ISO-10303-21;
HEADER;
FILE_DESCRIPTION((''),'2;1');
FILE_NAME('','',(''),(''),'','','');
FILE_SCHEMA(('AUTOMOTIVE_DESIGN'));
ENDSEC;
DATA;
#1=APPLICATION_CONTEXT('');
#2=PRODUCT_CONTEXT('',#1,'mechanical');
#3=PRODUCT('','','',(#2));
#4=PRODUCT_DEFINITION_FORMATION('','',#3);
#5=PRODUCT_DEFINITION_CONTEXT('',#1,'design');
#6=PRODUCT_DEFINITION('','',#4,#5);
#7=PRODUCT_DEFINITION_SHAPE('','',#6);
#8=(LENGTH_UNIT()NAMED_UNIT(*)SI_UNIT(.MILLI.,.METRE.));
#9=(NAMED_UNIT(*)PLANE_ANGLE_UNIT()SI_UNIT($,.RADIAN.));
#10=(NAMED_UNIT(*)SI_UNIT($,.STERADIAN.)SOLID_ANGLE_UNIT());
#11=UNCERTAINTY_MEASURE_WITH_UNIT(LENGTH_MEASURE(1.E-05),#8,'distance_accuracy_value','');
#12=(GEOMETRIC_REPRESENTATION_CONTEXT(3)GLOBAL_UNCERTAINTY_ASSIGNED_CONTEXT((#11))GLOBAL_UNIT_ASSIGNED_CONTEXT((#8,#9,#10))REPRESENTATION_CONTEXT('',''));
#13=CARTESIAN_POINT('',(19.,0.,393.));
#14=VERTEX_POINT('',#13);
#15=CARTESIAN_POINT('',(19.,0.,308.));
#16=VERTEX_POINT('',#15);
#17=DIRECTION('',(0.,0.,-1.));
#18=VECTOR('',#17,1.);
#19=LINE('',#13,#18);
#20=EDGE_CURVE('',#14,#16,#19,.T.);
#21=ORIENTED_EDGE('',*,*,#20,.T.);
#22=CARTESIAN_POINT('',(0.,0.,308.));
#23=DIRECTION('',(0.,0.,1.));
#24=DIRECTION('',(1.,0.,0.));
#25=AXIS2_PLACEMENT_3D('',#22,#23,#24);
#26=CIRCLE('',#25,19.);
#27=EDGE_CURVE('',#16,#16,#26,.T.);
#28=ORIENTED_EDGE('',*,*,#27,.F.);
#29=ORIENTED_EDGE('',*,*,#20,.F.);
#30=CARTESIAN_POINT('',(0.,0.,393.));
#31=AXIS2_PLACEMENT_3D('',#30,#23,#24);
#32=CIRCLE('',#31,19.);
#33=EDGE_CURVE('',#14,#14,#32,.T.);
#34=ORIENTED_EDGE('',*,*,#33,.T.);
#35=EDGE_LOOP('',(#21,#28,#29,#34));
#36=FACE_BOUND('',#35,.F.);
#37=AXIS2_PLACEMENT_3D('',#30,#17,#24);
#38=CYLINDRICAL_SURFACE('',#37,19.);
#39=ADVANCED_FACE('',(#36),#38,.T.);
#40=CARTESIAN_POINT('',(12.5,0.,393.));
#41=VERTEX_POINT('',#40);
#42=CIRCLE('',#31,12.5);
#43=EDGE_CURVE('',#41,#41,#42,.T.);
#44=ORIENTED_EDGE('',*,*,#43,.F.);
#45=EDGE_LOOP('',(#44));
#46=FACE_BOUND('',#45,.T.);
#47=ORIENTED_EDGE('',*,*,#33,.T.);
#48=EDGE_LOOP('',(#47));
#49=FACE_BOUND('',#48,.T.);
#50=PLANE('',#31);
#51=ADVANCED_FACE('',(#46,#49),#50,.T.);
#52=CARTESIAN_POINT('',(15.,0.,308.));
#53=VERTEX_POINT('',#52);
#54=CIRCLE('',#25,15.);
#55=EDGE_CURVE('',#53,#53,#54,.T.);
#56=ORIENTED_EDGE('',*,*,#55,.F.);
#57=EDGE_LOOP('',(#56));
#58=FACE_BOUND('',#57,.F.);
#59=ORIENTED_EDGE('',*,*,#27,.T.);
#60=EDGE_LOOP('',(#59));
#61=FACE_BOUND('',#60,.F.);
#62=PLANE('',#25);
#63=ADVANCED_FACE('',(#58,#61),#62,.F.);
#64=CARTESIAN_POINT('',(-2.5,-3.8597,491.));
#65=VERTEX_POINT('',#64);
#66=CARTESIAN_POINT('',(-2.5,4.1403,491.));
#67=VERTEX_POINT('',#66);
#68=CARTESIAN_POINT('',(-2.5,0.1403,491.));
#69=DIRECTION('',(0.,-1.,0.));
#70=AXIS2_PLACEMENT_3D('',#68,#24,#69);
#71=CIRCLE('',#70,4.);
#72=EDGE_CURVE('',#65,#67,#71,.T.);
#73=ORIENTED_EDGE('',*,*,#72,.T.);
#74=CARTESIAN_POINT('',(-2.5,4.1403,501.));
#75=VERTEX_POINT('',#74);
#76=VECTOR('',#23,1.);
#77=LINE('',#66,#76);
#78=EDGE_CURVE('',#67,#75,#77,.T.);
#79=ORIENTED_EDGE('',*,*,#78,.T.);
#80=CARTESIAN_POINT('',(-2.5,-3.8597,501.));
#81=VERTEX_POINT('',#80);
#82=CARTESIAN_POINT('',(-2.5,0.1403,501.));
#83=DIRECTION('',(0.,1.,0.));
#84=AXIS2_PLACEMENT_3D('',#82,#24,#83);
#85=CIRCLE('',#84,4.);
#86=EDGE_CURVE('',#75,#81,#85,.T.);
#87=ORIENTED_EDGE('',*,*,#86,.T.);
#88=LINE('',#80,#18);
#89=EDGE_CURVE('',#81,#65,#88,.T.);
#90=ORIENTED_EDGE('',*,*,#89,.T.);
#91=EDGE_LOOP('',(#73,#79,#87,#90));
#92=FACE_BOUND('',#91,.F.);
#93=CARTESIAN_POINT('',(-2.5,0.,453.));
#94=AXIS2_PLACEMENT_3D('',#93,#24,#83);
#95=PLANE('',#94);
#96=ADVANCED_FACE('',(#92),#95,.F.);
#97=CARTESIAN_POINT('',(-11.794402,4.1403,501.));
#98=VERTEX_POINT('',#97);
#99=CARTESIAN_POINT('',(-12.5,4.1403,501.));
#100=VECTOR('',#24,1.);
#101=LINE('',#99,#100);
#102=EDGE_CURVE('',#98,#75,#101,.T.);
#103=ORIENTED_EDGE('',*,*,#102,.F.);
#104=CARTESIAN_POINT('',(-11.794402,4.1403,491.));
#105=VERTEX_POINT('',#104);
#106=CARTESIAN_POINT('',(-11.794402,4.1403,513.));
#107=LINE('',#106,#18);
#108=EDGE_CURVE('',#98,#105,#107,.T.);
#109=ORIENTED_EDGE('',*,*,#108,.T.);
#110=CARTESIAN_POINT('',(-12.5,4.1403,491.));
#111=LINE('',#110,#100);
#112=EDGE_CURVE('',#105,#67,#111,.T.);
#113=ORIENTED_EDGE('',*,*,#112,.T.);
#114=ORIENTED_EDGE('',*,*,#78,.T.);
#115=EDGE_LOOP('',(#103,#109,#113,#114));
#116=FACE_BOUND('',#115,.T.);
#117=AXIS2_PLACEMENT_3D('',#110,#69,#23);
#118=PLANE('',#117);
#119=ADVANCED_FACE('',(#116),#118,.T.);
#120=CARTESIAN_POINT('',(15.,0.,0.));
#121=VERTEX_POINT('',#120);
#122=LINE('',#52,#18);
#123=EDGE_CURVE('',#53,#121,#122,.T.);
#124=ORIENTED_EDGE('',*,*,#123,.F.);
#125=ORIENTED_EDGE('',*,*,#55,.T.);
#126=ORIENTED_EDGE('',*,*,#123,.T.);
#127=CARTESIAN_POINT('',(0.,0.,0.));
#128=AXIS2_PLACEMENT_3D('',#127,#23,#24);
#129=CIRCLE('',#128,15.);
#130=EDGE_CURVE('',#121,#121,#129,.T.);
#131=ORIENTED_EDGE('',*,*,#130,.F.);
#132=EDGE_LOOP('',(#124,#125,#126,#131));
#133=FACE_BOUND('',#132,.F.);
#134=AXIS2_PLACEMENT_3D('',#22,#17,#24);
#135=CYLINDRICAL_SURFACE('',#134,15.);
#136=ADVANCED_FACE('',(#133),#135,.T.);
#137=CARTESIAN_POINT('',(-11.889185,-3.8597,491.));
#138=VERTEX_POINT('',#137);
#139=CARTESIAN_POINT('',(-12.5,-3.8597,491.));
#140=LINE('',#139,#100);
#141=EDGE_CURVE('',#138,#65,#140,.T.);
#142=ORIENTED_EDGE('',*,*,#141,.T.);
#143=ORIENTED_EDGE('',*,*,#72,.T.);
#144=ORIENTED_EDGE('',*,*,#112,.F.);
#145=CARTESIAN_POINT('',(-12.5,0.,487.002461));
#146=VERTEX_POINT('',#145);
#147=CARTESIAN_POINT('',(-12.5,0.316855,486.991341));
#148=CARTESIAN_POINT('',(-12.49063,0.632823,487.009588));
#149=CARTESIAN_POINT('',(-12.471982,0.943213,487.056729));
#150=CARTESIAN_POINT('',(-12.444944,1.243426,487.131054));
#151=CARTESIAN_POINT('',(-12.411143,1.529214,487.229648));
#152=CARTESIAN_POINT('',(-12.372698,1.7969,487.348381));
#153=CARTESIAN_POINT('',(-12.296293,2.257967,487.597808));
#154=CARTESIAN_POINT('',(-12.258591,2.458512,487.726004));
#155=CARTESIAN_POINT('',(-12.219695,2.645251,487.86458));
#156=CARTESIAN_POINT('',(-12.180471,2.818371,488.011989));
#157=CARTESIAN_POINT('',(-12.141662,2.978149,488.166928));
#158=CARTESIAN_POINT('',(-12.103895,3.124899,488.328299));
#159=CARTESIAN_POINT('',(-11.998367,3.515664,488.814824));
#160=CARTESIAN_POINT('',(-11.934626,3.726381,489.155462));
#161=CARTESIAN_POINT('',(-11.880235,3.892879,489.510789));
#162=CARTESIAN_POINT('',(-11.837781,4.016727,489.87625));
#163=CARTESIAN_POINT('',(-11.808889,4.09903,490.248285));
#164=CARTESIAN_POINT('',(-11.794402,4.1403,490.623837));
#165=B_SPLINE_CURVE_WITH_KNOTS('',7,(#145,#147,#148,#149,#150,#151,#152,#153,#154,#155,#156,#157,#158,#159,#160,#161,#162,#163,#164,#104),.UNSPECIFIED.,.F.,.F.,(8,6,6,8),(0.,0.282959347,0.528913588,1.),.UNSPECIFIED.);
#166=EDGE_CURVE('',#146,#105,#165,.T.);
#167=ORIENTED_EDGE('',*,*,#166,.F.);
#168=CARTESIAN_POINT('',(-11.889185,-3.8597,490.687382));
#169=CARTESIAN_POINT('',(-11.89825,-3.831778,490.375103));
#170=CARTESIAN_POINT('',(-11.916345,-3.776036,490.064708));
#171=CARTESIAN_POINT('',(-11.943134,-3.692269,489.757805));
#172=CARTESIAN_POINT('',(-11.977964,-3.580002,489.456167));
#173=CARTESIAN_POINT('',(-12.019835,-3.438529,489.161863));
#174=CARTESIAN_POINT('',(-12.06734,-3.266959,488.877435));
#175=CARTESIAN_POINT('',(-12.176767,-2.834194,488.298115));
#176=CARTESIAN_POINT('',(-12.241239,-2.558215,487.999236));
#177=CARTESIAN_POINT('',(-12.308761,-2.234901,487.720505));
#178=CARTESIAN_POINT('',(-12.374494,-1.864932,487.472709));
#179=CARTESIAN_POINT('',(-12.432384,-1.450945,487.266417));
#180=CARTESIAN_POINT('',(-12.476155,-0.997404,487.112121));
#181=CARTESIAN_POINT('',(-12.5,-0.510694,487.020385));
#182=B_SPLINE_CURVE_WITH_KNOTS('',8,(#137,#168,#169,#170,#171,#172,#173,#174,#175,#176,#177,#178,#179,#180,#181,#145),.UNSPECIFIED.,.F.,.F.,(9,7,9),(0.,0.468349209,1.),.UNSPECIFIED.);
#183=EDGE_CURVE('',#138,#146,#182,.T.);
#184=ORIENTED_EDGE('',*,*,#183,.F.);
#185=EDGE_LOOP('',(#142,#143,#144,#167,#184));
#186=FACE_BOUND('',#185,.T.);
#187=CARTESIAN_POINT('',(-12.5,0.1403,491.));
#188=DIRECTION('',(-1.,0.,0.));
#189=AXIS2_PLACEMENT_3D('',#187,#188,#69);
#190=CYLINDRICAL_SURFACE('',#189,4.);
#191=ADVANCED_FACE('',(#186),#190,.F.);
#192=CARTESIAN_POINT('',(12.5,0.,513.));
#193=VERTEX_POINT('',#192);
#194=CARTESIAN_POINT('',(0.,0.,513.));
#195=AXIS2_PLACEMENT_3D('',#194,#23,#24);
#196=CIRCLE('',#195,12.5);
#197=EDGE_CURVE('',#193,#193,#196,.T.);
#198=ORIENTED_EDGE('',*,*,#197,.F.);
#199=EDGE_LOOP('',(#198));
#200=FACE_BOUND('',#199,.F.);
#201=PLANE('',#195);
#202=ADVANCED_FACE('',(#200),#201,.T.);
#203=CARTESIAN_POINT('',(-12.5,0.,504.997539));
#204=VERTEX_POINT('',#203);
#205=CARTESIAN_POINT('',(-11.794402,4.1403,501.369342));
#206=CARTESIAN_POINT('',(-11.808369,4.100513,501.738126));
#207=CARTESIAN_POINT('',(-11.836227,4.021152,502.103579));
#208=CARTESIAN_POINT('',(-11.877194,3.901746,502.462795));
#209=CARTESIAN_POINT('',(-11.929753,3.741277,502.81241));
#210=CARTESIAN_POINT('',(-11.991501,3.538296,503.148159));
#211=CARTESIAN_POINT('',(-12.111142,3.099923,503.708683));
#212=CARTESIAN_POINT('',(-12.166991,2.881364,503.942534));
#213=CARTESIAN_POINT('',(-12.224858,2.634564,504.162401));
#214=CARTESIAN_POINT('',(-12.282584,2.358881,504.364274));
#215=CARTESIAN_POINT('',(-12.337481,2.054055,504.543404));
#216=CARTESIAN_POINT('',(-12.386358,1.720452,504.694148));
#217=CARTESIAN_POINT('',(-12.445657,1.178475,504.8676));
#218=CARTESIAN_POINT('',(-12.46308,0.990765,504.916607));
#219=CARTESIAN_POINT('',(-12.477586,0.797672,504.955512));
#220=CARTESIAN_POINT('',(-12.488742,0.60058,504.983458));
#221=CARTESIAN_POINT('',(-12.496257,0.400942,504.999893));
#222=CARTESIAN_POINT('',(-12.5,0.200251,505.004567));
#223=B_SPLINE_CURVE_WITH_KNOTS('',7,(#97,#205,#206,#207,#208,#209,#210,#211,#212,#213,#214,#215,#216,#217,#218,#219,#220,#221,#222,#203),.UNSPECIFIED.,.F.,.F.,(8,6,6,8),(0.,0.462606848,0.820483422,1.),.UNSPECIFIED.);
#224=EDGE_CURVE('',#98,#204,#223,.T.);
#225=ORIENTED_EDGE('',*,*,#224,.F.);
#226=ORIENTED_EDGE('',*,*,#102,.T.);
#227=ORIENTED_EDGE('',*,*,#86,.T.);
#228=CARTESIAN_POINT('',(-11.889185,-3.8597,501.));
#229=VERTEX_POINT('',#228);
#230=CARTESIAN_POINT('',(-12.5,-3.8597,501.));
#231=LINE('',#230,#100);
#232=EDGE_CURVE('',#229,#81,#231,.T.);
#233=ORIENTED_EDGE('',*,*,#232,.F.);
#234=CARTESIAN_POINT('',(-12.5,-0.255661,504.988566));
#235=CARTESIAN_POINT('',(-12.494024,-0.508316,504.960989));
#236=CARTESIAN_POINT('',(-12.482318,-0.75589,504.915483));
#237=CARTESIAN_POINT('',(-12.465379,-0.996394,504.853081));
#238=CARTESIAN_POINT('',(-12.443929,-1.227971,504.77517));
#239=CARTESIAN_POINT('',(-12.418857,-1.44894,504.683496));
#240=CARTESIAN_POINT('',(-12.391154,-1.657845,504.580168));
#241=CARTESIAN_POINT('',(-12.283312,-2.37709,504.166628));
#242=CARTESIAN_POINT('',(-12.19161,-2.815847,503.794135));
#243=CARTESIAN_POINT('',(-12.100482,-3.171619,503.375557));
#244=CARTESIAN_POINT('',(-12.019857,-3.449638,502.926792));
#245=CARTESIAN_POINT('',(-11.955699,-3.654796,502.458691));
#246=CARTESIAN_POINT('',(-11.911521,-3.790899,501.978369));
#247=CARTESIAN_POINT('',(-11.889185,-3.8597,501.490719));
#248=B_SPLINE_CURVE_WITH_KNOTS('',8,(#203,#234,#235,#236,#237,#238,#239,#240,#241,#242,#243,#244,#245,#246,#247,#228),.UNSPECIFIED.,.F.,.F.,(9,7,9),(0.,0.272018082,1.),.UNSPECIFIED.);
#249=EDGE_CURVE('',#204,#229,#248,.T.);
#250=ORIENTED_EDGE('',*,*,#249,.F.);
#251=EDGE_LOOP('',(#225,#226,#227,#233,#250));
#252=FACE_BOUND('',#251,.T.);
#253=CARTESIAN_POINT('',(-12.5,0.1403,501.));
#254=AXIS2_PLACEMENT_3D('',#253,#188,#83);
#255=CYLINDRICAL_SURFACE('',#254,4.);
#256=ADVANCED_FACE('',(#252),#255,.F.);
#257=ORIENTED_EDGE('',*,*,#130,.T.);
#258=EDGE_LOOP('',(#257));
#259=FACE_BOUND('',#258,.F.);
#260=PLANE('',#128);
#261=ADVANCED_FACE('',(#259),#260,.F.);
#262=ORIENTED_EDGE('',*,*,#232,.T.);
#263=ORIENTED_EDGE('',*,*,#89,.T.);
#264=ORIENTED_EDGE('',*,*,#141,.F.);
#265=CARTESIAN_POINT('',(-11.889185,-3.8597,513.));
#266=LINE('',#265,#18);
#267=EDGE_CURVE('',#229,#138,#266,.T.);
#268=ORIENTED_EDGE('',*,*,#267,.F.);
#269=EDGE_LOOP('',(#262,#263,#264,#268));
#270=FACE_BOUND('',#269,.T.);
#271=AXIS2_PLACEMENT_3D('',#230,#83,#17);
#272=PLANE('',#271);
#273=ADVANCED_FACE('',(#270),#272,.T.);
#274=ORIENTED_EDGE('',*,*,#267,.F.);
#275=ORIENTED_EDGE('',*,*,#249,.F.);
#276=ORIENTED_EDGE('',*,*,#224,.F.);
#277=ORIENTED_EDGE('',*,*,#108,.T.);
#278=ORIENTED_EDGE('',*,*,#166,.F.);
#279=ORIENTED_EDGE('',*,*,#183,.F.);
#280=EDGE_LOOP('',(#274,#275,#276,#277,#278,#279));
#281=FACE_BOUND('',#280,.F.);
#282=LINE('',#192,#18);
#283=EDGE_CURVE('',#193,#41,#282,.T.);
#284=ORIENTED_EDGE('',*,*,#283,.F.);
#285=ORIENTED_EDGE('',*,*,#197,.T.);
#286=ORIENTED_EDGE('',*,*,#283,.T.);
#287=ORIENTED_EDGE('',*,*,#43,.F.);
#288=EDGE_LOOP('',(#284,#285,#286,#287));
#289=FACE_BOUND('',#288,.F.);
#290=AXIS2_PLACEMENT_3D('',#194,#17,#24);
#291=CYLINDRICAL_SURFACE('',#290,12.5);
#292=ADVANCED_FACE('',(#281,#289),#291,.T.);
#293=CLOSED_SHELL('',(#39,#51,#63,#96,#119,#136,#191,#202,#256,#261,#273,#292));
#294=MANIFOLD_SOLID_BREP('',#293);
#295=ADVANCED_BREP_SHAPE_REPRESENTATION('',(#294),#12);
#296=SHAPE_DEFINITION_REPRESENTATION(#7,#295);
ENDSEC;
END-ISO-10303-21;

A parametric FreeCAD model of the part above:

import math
import FreeCAD as App
import Part
import Sketcher
Q = App.Units.Quantity

doc = App.newDocument("Part")
body = doc.addObject("PartDesign::Body", "Body")

# Sketch on XZ plane
sketch1 = body.newObject("Sketcher::SketchObject", "Sketch")
sketch1.AttachmentSupport = (doc.getObject("XZ_Plane"), [""])
sketch1.MapMode = "FlatFace"
sketch1.addGeometry(Part.LineSegment(App.Vector(15, 0, 0), App.Vector(0, 0, 0)), False)
sketch1.addGeometry(Part.LineSegment(App.Vector(0, 0, 0), App.Vector(0, 513, 0)), False)
sketch1.addGeometry(Part.LineSegment(App.Vector(0, 513, 0), App.Vector(12.5, 513, 0)), False)
sketch1.addGeometry(Part.LineSegment(App.Vector(12.5, 513, 0), App.Vector(12.5, 393, 0)), False)
sketch1.addGeometry(Part.LineSegment(App.Vector(12.5, 393, 0), App.Vector(19, 393, 0)), False)
sketch1.addGeometry(Part.LineSegment(App.Vector(19, 393, 0), App.Vector(19, 308, 0)), False)
sketch1.addGeometry(Part.LineSegment(App.Vector(19, 308, 0), App.Vector(15, 308, 0)), False)
sketch1.addGeometry(Part.LineSegment(App.Vector(15, 308, 0), App.Vector(15, 0, 0)), False)
sketch1.addConstraint(Sketcher.Constraint("Coincident", 0, 2, 1, 1))
sketch1.addConstraint(Sketcher.Constraint("Coincident", 1, 2, 2, 1))
sketch1.addConstraint(Sketcher.Constraint("Coincident", 2, 2, 3, 1))
sketch1.addConstraint(Sketcher.Constraint("Coincident", 3, 2, 4, 1))
sketch1.addConstraint(Sketcher.Constraint("Coincident", 4, 2, 5, 1))
sketch1.addConstraint(Sketcher.Constraint("Coincident", 5, 2, 6, 1))
sketch1.addConstraint(Sketcher.Constraint("Coincident", 6, 2, 7, 1))
sketch1.addConstraint(Sketcher.Constraint("Coincident", 7, 2, 0, 1))
sketch1.addConstraint(Sketcher.Constraint("Horizontal", 0))
sketch1.addConstraint(Sketcher.Constraint("Vertical", 1))
sketch1.addConstraint(Sketcher.Constraint("Horizontal", 2))
sketch1.addConstraint(Sketcher.Constraint("Vertical", 3))
sketch1.addConstraint(Sketcher.Constraint("Horizontal", 4))
sketch1.addConstraint(Sketcher.Constraint("Vertical", 5))
sketch1.addConstraint(Sketcher.Constraint("Horizontal", 6))
sketch1.addConstraint(Sketcher.Constraint("Vertical", 7))
sketch1.addConstraint(Sketcher.Constraint("Coincident", 0, 2, -1, 1))
sketch1.addConstraint(Sketcher.Constraint("DistanceY", 3, 2, 3, 1, Q("120 mm")))
sketch1.addConstraint(Sketcher.Constraint("DistanceY", 5, 2, 5, 1, Q("85 mm")))
sketch1.addConstraint(Sketcher.Constraint("DistanceY", 7, 2, 7, 1, Q("308 mm")))
sketch1.addConstraint(Sketcher.Constraint("DistanceX", 0, 2, 0, 1, Q("15 mm")))
sketch1.addConstraint(Sketcher.Constraint("DistanceX", 6, 2, 6, 1, Q("4 mm")))
sketch1.addConstraint(Sketcher.Constraint("DistanceX", 2, 1, 2, 2, Q("12.5 mm")))
revolution = body.newObject("PartDesign::Revolution", "Revolution")
revolution.Profile = sketch1
revolution.ReferenceAxis = (sketch1, ["V_Axis"])
revolution.Angle = 360

# Sketch on YZ plane
sketch2 = body.newObject("Sketcher::SketchObject", "Sketch001")
sketch2.AttachmentSupport = (doc.getObject("YZ_Plane"), [""])
sketch2.MapMode = "FlatFace"
sketch2.AttachmentOffset = App.Placement(App.Vector(0, 0, -12.5), App.Rotation())
sketch2.addGeometry(Part.ArcOfCircle(Part.Circle(App.Vector(0.1, 501, 0), App.Vector(0, 0, 1), 4), math.radians(0), math.radians(180)), False)
sketch2.addGeometry(Part.LineSegment(App.Vector(-3.9, 501, 0), App.Vector(-3.9, 491, 0)), False)
sketch2.addGeometry(Part.ArcOfCircle(Part.Circle(App.Vector(0.1, 491, 0), App.Vector(0, 0, 1), 4), math.radians(180), math.radians(360)), False)
sketch2.addGeometry(Part.LineSegment(App.Vector(4.1, 491, 0), App.Vector(4.1, 501, 0)), False)
sketch2.addConstraint(Sketcher.Constraint("Tangent", 0, 2, 1, 1))
sketch2.addConstraint(Sketcher.Constraint("Tangent", 1, 2, 2, 1))
sketch2.addConstraint(Sketcher.Constraint("Tangent", 2, 2, 3, 1))
sketch2.addConstraint(Sketcher.Constraint("Tangent", 3, 2, 0, 1))
sketch2.addConstraint(Sketcher.Constraint("Vertical", 1))
sketch2.addConstraint(Sketcher.Constraint("Vertical", 3))
sketch2.addConstraint(Sketcher.Constraint("Radius", 0, Q("4 mm")))
sketch2.addConstraint(Sketcher.Constraint("DistanceY", 1, 2, 1, 1, Q("10 mm")))
sketch2.addConstraint(Sketcher.Constraint("DistanceY", -1, 1, 0, 3, Q("501 mm")))
sketch2.addConstraint(Sketcher.Constraint("DistanceX", -1, 1, 0, 3, Q("0.1403 mm")))
pocket1 = body.newObject("PartDesign::Pocket", "Pocket")
pocket1.Profile = sketch2
pocket1.Length = 10
pocket1.Reversed = True

doc.recompute()
